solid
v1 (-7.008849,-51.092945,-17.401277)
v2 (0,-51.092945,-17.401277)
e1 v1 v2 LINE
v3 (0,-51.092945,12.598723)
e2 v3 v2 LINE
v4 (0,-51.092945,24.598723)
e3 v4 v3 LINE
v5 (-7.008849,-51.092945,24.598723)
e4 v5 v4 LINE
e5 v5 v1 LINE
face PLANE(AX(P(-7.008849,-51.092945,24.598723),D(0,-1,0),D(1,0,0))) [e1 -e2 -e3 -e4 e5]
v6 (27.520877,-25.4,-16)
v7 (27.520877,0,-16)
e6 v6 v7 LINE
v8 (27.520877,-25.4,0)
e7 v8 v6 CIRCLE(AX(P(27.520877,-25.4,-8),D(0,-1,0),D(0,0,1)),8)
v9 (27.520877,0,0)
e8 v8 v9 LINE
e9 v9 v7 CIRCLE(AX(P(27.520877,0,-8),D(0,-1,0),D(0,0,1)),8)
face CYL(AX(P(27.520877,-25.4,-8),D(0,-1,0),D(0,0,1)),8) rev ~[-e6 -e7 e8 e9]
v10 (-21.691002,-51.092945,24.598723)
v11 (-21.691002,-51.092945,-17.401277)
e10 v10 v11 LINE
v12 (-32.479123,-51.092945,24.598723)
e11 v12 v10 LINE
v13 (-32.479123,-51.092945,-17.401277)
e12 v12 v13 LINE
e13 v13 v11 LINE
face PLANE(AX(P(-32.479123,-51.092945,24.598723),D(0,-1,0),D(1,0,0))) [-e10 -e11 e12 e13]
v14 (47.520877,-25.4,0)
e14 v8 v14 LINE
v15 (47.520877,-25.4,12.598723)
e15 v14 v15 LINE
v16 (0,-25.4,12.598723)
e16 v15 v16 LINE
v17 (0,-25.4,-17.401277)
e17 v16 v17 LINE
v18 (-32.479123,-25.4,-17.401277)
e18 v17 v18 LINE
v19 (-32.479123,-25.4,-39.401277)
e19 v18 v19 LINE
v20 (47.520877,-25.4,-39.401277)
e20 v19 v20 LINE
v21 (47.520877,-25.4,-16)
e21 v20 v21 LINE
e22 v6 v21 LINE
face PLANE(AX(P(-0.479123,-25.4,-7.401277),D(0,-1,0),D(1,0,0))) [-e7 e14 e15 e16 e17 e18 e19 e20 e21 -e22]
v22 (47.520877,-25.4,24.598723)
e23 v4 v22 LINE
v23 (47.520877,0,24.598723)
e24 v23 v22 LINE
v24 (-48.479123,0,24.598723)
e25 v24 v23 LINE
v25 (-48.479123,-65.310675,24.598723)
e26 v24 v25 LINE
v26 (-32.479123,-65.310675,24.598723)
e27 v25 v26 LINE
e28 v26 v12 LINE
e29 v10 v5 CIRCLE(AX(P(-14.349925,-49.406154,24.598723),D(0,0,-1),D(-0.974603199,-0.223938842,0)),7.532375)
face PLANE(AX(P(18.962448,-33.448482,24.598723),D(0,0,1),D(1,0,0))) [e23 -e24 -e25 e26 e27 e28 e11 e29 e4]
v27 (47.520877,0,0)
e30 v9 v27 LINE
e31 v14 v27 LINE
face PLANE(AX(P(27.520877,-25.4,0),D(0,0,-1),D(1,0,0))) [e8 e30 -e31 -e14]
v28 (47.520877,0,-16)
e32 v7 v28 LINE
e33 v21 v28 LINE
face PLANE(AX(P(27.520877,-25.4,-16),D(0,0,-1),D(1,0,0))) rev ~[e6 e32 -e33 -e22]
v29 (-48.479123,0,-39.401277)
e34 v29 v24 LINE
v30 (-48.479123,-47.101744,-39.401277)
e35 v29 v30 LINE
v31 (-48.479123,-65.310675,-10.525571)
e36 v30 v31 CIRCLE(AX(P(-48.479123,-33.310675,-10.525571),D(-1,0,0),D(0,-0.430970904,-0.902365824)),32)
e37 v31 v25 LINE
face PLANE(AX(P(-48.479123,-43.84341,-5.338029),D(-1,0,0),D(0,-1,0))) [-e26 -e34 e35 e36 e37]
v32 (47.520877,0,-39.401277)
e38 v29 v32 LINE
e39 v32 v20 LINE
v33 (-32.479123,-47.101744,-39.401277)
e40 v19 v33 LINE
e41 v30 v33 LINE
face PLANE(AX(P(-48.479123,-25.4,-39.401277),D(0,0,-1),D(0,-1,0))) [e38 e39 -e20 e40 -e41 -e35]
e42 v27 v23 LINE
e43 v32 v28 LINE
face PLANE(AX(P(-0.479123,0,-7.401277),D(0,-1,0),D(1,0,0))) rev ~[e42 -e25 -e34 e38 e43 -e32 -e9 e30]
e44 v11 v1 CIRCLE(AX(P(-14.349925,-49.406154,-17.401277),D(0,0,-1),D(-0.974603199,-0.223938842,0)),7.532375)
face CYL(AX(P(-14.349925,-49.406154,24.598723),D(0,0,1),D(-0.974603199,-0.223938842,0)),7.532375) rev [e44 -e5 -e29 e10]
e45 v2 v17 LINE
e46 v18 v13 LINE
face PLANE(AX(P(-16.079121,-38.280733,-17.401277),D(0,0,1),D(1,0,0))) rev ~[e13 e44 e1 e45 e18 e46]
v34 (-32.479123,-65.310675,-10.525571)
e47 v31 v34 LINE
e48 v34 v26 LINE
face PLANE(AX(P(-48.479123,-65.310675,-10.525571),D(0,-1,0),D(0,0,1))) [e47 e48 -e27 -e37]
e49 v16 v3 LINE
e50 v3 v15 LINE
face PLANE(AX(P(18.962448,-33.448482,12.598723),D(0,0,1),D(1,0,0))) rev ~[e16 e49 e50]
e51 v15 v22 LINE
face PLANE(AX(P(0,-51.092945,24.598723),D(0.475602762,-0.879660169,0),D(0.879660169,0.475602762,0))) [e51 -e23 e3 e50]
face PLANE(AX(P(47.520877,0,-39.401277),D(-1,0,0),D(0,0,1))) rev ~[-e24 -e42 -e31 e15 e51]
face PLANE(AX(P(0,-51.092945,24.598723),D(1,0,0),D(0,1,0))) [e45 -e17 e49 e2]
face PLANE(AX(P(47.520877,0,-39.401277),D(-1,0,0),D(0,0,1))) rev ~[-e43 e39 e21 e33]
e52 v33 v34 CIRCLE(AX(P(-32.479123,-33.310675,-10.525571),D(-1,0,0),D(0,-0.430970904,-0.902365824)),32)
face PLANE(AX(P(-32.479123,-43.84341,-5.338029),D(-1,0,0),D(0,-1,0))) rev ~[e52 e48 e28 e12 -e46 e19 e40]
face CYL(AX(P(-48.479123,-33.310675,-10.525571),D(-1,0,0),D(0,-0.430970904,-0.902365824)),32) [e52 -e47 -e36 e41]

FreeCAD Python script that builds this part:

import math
import FreeCAD as App
import Part
import Sketcher
from FreeCAD import Vector


def add_polygon(sketch, points):
    """Adds a closed chain of lines whose ends are joined by coincident constraints."""
    first, n = sketch.GeometryCount, len(points)
    for a, b in zip(points, points[1:] + points[:1]):
        sketch.addGeometry(Part.LineSegment(App.Vector(*a, 0), App.Vector(*b, 0)), False)
    for i in range(n):
        sketch.addConstraint(Sketcher.Constraint("Coincident", first + i, 2, first + (i + 1) % n, 1))

doc = App.newDocument("Part")
body = doc.addObject("PartDesign::Body", "Body")

# Sketch on XZ plane
sketch1 = doc.addObject("Sketcher::SketchObject", "Sketch")
body.addObject(sketch1)
sketch1.AttachmentSupport = (doc.XZ_Plane, [""])
sketch1.MapMode = "FlatFace"
add_polygon(sketch1, [(-48, 25), (-48, -39), (48, -39), (48, 25)])  # lines 0-3
sketch1.addConstraint(Sketcher.Constraint("Vertical", 0))
sketch1.addConstraint(Sketcher.Constraint("Horizontal", 1))
sketch1.addConstraint(Sketcher.Constraint("Vertical", 2))
sketch1.addConstraint(Sketcher.Constraint("Horizontal", 3))
sketch1.addConstraint(Sketcher.Constraint("DistanceX", 1, 1, 1, 2, 96.0))
sketch1.addConstraint(Sketcher.Constraint("DistanceY", 0, 2, 0, 1, 64.0))
sketch1.addConstraint(Sketcher.Constraint("DistanceX", 0, 2, -1, 1, 48.479123))
sketch1.addConstraint(Sketcher.Constraint("DistanceY", 0, 2, -1, 1, 39.401277))
pad1 = doc.addObject("PartDesign::Pad", "Pad")
body.addObject(pad1)
pad1.Profile = sketch1
pad1.Length = 25.4

# Sketch on XZ plane
sketch2 = doc.addObject("Sketcher::SketchObject", "Sketch001")
body.addObject(sketch2)
sketch2.AttachmentSupport = (doc.XZ_Plane, [""])
sketch2.MapMode = "FlatFace"
sketch2.AttachmentOffset = App.Placement(Vector(0, 0, 25.4), App.Rotation())
sketch2.addGeometry(Part.ArcOfCircle(Part.Circle(Vector(28, -8, 0), Vector(0, 0, 1), 8), math.radians(90), math.radians(270)), False)
sketch2.addGeometry(Part.LineSegment(Vector(28, -16, 0), Vector(48, -16, 0)), False)
sketch2.addGeometry(Part.LineSegment(Vector(48, -16, 0), Vector(48, 0, 0)), False)
sketch2.addGeometry(Part.LineSegment(Vector(48, 0, 0), Vector(28, 0, 0)), False)
sketch2.addConstraint(Sketcher.Constraint("Tangent", 0, 2, 1, 1))
sketch2.addConstraint(Sketcher.Constraint("Coincident", 1, 2, 2, 1))
sketch2.addConstraint(Sketcher.Constraint("Coincident", 2, 2, 3, 1))
sketch2.addConstraint(Sketcher.Constraint("Tangent", 3, 2, 0, 1))
sketch2.addConstraint(Sketcher.Constraint("Horizontal", 1))
sketch2.addConstraint(Sketcher.Constraint("Vertical", 2))
sketch2.addConstraint(Sketcher.Constraint("Horizontal", 3))
sketch2.addConstraint(Sketcher.Constraint("PointOnObject", 2, 2, -1))
sketch2.addConstraint(Sketcher.Constraint("Radius", 0, 8.0))
sketch2.addConstraint(Sketcher.Constraint("DistanceX", 1, 1, 1, 2, 20.0))
sketch2.addConstraint(Sketcher.Constraint("DistanceX", -1, 1, 0, 3, 27.520877))
pocket1 = doc.addObject("PartDesign::Pocket", "Pocket")
body.addObject(pocket1)
pocket1.Profile = sketch2
pocket1.Length = 25.4

# Sketch on YZ plane
sketch3 = doc.addObject("Sketcher::SketchObject", "Sketch002")
body.addObject(sketch3)
sketch3.AttachmentSupport = (doc.YZ_Plane, [""])
sketch3.MapMode = "FlatFace"
sketch3.AttachmentOffset = App.Placement(Vector(0, 0, -48.479123), App.Rotation())
sketch3.addGeometry(Part.LineSegment(Vector(-65, 25, 0), Vector(-25, 25, 0)), False)
sketch3.addGeometry(Part.LineSegment(Vector(-25, 25, 0), Vector(-25, -39, 0)), False)
sketch3.addGeometry(Part.LineSegment(Vector(-25, -39, 0), Vector(-47, -39, 0)), False)
sketch3.addGeometry(Part.ArcOfCircle(Part.Circle(Vector(-33, -11, 0), Vector(0, 0, 1), 32), math.radians(-180), math.radians(-116)), False)
sketch3.addGeometry(Part.LineSegment(Vector(-65, -11, 0), Vector(-65, 25, 0)), False)
sketch3.addConstraint(Sketcher.Constraint("Coincident", 0, 2, 1, 1))
sketch3.addConstraint(Sketcher.Constraint("Coincident", 1, 2, 2, 1))
sketch3.addConstraint(Sketcher.Constraint("Coincident", 2, 2, 3, 2))
sketch3.addConstraint(Sketcher.Constraint("Tangent", 3, 1, 4, 1))
sketch3.addConstraint(Sketcher.Constraint("Coincident", 4, 2, 0, 1))
sketch3.addConstraint(Sketcher.Constraint("Horizontal", 0))
sketch3.addConstraint(Sketcher.Constraint("Vertical", 1))
sketch3.addConstraint(Sketcher.Constraint("Horizontal", 2))
sketch3.addConstraint(Sketcher.Constraint("Vertical", 4))
sketch3.addConstraint(Sketcher.Constraint("Radius", 3, 32.0))
sketch3.addConstraint(Sketcher.Constraint("DistanceY", 1, 2, 1, 1, 64.0))
sketch3.addConstraint(Sketcher.Constraint("DistanceX", 0, 2, -1, 1, 25.4))
sketch3.addConstraint(Sketcher.Constraint("DistanceX", 0, 1, 0, 2, 39.910675))
sketch3.addConstraint(Sketcher.Constraint("DistanceX", 2, 2, 2, 1, 21.701744))
sketch3.addConstraint(Sketcher.Constraint("DistanceY", 3, 3, -1, 1, 10.525571))
pad2 = doc.addObject("PartDesign::Pad", "Pad001")
body.addObject(pad2)
pad2.Profile = sketch3
pad2.Length = 16

# Sketch on XY plane
sketch4 = doc.addObject("Sketcher::SketchObject", "Sketch003")
body.addObject(sketch4)
sketch4.AttachmentSupport = (doc.XY_Plane, [""])
sketch4.MapMode = "FlatFace"
sketch4.AttachmentOffset = App.Placement(Vector(0, 0, 24.598723), App.Rotation())
sketch4.addGeometry(Part.LineSegment(Vector(0, -25, 0), Vector(-32, -25, 0)), False)
sketch4.addGeometry(Part.LineSegment(Vector(-32, -25, 0), Vector(-32, -51, 0)), False)
sketch4.addGeometry(Part.LineSegment(Vector(-32, -51, 0), Vector(-22, -51, 0)), False)
sketch4.addGeometry(Part.ArcOfCircle(Part.Circle(Vector(-14, -49, 0), Vector(0, 0, 1), 8), math.radians(-13), math.radians(193)), False)
sketch4.addGeometry(Part.LineSegment(Vector(-7, -51, 0), Vector(0, -51, 0)), False)
sketch4.addGeometry(Part.LineSegment(Vector(0, -51, 0), Vector(0, -25, 0)), False)
sketch4.addConstraint(Sketcher.Constraint("Coincident", 0, 2, 1, 1))
sketch4.addConstraint(Sketcher.Constraint("Coincident", 1, 2, 2, 1))
sketch4.addConstraint(Sketcher.Constraint("Coincident", 2, 2, 3, 2))
sketch4.addConstraint(Sketcher.Constraint("Coincident", 3, 1, 4, 1))
sketch4.addConstraint(Sketcher.Constraint("Coincident", 4, 2, 5, 1))
sketch4.addConstraint(Sketcher.Constraint("Coincident", 5, 2, 0, 1))
sketch4.addConstraint(Sketcher.Constraint("Horizontal", 0))
sketch4.addConstraint(Sketcher.Constraint("Vertical", 1))
sketch4.addConstraint(Sketcher.Constraint("Horizontal", 2))
sketch4.addConstraint(Sketcher.Constraint("Horizontal", 4))
sketch4.addConstraint(Sketcher.Constraint("Vertical", 5))
sketch4.addConstraint(Sketcher.Constraint("PointOnObject", 4, 2, -2))
sketch4.addConstraint(Sketcher.Constraint("Horizontal", 2, 2, 3, 1))
sketch4.addConstraint(Sketcher.Constraint("DistanceY", 0, 2, -1, 1, 25.4))
sketch4.addConstraint(Sketcher.Constraint("Radius", 3, 7.532375))
sketch4.addConstraint(Sketcher.Constraint("DistanceX", 2, 1, 2, 2, 10.788121))
sketch4.addConstraint(Sketcher.Constraint("DistanceX", 4, 1, 4, 2, 7.008849))
sketch4.addConstraint(Sketcher.Constraint("DistanceX", 0, 2, 0, 1, 32.479123))
sketch4.addConstraint(Sketcher.Constraint("DistanceY", 1, 2, 1, 1, 25.692945))
pad3 = doc.addObject("PartDesign::Pad", "Pad002")
body.addObject(pad3)
pad3.Profile = sketch4
pad3.Length = 42
pad3.Reversed = True

# Sketch on XY plane
sketch5 = doc.addObject("Sketcher::SketchObject", "Sketch004")
body.addObject(sketch5)
sketch5.AttachmentSupport = (doc.XY_Plane, [""])
sketch5.MapMode = "FlatFace"
sketch5.AttachmentOffset = App.Placement(Vector(0, 0, 24.598723), App.Rotation())
add_polygon(sketch5, [(0, -51), (48, -25), (0, -25)])  # lines 0-2
sketch5.addConstraint(Sketcher.Constraint("Horizontal", 1))
sketch5.addConstraint(Sketcher.Constraint("Vertical", 2))
sketch5.addConstraint(Sketcher.Constraint("PointOnObject", 1, 2, -2))
sketch5.addConstraint(Sketcher.Constraint("DistanceY", 0, 2, -1, 1, 25.4))
sketch5.addConstraint(Sketcher.Constraint("Distance", 0, 54.021858))
sketch5.addConstraint(Sketcher.Constraint("DistanceX", 1, 2, 1, 1, 47.520877))
pad4 = doc.addObject("PartDesign::Pad", "Pad003")
body.addObject(pad4)
pad4.Profile = sketch5
pad4.Length = 12
pad4.Reversed = True

doc.recompute()
